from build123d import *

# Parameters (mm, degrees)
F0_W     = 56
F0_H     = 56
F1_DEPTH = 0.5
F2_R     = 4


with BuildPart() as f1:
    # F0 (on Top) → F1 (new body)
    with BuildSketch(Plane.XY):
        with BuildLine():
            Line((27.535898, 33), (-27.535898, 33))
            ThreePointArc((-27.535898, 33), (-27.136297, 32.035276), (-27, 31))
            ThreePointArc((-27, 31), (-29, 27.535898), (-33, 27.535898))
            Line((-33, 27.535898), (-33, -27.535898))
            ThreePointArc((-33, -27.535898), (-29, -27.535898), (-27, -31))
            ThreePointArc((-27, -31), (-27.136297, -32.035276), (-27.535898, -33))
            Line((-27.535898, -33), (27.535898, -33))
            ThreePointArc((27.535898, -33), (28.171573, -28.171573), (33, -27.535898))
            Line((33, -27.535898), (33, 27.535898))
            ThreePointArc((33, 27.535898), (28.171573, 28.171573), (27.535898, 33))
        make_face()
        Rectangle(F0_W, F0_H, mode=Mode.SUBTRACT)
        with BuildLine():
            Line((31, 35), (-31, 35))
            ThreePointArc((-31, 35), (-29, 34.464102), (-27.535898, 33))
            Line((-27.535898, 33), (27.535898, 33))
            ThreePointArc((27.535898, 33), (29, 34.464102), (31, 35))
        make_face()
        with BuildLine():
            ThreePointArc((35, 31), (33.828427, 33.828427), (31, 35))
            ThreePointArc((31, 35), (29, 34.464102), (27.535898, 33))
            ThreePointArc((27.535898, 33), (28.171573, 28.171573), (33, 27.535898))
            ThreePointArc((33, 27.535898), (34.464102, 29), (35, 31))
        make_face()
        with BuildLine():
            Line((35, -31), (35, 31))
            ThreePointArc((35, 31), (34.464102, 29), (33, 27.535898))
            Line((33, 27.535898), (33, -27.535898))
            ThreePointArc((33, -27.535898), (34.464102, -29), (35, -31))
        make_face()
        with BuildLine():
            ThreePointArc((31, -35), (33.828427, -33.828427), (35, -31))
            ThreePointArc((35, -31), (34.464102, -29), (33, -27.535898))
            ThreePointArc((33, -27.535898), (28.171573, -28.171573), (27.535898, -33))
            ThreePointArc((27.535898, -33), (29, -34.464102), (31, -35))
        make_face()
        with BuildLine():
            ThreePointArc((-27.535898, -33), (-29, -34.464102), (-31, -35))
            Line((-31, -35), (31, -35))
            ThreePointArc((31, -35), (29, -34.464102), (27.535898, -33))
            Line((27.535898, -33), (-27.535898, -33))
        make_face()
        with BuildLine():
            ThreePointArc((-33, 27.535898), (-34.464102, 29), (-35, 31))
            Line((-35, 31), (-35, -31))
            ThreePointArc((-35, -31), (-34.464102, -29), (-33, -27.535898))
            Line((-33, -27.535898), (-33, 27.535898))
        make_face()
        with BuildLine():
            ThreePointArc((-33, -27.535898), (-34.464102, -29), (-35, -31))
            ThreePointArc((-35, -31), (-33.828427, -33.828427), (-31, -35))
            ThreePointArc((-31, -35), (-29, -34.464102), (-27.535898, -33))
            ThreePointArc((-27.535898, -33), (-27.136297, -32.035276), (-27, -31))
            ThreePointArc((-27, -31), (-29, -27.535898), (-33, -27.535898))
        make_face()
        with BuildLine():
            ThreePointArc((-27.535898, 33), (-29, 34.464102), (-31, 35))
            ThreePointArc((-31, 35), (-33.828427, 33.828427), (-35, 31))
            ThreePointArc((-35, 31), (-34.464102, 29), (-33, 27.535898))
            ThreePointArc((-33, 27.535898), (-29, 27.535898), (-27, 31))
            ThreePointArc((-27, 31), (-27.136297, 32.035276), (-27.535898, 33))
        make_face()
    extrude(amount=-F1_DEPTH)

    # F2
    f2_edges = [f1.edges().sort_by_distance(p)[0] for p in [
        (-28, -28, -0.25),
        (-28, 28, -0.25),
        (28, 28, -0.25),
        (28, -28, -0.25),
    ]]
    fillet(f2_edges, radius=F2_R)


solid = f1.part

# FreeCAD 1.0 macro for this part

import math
import FreeCAD as App
import Part
import Sketcher


def edges_at(feature, points):
    """Names of the edges that pass closest to the given points."""
    edges = feature.Shape.Edges
    near = lambda p: min(range(len(edges)), key=lambda i: edges[i].distToShape(Part.Vertex(*p))[0])
    return sorted({f"Edge{near(p) + 1}" for p in points})

doc = App.newDocument("Part")
params = doc.addObject("Spreadsheet::Sheet", "Params")
for row, (alias, value) in enumerate([
    ("sketch1_radius", "4 mm"),
    ("sketch1_width", "62 mm"),
    ("sketch1_width2", "56 mm"),
    ("pad1_length", "0.5 mm"),
    ("fillet_radius", "4 mm"),
], start=1):
    params.set(f"A{row}", alias)
    params.set(f"B{row}", "=" + value)
    params.setAlias(f"B{row}", alias)

body = doc.addObject("PartDesign::Body", "Body")

# Sketch on XY plane
sketch1 = doc.addObject("Sketcher::SketchObject", "Sketch")
body.addObject(sketch1)
sketch1.AttachmentSupport = (doc.XY_Plane, [""])
sketch1.MapMode = "FlatFace"
sketch1.addGeometry(Part.LineSegment(App.Vector(31, 35, 0), App.Vector(-31, 35, 0)), False)
sketch1.addGeometry(Part.ArcOfCircle(Part.Circle(App.Vector(-31, 31, 0), App.Vector(0, 0, 1), 4), math.radians(90.000006), math.radians(179.999994)), False)
sketch1.addGeometry(Part.LineSegment(App.Vector(-35, 31, 0), App.Vector(-35, -31, 0)), False)
sketch1.addGeometry(Part.ArcOfCircle(Part.Circle(App.Vector(-31, -31, 0), App.Vector(0, 0, 1), 4), math.radians(-179.999994), math.radians(-90.000006)), False)
sketch1.addGeometry(Part.LineSegment(App.Vector(-31, -35, 0), App.Vector(31, -35, 0)), False)
sketch1.addGeometry(Part.ArcOfCircle(Part.Circle(App.Vector(31, -31, 0), App.Vector(0, 0, 1), 4), math.radians(-89.999994), math.radians(-0.000006)), False)
sketch1.addGeometry(Part.LineSegment(App.Vector(35, -31, 0), App.Vector(35, 31, 0)), False)
sketch1.addGeometry(Part.ArcOfCircle(Part.Circle(App.Vector(31, 31, 0), App.Vector(0, 0, 1), 4), math.radians(0.000006), math.radians(89.999994)), False)
sketch1.addGeometry(Part.LineSegment(App.Vector(28, -28, 0), App.Vector(-28, -28, 0)), False)
sketch1.addGeometry(Part.LineSegment(App.Vector(-28, -28, 0), App.Vector(-28, 28, 0)), False)
sketch1.addGeometry(Part.LineSegment(App.Vector(-28, 28, 0), App.Vector(28, 28, 0)), False)
sketch1.addGeometry(Part.LineSegment(App.Vector(28, 28, 0), App.Vector(28, -28, 0)), False)
sketch1.addConstraint(Sketcher.Constraint("Tangent", 0, 2, 1, 1))
sketch1.addConstraint(Sketcher.Constraint("Tangent", 1, 2, 2, 1))
sketch1.addConstraint(Sketcher.Constraint("Tangent", 2, 2, 3, 1))
sketch1.addConstraint(Sketcher.Constraint("Tangent", 3, 2, 4, 1))
sketch1.addConstraint(Sketcher.Constraint("Tangent", 4, 2, 5, 1))
sketch1.addConstraint(Sketcher.Constraint("Tangent", 5, 2, 6, 1))
sketch1.addConstraint(Sketcher.Constraint("Tangent", 6, 2, 7, 1))
sketch1.addConstraint(Sketcher.Constraint("Tangent", 7, 2, 0, 1))
sketch1.addConstraint(Sketcher.Constraint("Coincident", 8, 2, 9, 1))
sketch1.addConstraint(Sketcher.Constraint("Coincident", 9, 2, 10, 1))
sketch1.addConstraint(Sketcher.Constraint("Coincident", 10, 2, 11, 1))
sketch1.addConstraint(Sketcher.Constraint("Coincident", 11, 2, 8, 1))
sketch1.addConstraint(Sketcher.Constraint("Horizontal", 0))
sketch1.addConstraint(Sketcher.Constraint("Vertical", 2))
sketch1.addConstraint(Sketcher.Constraint("Horizontal", 4))
sketch1.addConstraint(Sketcher.Constraint("Vertical", 6))
sketch1.addConstraint(Sketcher.Constraint("Horizontal", 8))
sketch1.addConstraint(Sketcher.Constraint("Vertical", 9))
sketch1.addConstraint(Sketcher.Constraint("Horizontal", 10))
sketch1.addConstraint(Sketcher.Constraint("Vertical", 11))
sketch1.addConstraint(Sketcher.Constraint("Equal", 1, 3))
sketch1.addConstraint(Sketcher.Constraint("Equal", 3, 5))
sketch1.addConstraint(Sketcher.Constraint("Equal", 5, 7))
sketch1.addConstraint(Sketcher.Constraint("Symmetric", 1, 3, 5, 3, -1, 1))
sketch1.addConstraint(Sketcher.Constraint("Symmetric", 8, 2, 10, 2, -1, 1))
sketch1.addConstraint(Sketcher.Constraint("Equal", 4, 2))
sketch1.addConstraint(Sketcher.Constraint("Equal", 10, 9))
sketch1.addConstraint(Sketcher.Constraint("Radius", 1, 4.0))
sketch1.addConstraint(Sketcher.Constraint("DistanceX", 0, 2, 0, 1, 62.0))
sketch1.addConstraint(Sketcher.Constraint("DistanceX", 8, 2, 8, 1, 56.0))
sketch1.setExpression("Constraints[27]", "Params.sketch1_radius")
sketch1.setExpression("Constraints[28]", "Params.sketch1_width")
sketch1.setExpression("Constraints[29]", "Params.sketch1_width2")
pad1 = doc.addObject("PartDesign::Pad", "Pad")
body.addObject(pad1)
pad1.Profile = sketch1
pad1.setExpression("Length", "Params.pad1_length")
pad1.Reversed = True
doc.recompute()

fillet = doc.addObject("PartDesign::Fillet", "Fillet")
body.addObject(fillet)
fillet.Base = (pad1, edges_at(pad1, [
    (-28, -28, -0.25),
    (-28, 28, -0.25),
    (28, 28, -0.25),
    (28, -28, -0.25),
]))
fillet.setExpression("Radius", "Params.fillet_radius")

doc.recompute()
